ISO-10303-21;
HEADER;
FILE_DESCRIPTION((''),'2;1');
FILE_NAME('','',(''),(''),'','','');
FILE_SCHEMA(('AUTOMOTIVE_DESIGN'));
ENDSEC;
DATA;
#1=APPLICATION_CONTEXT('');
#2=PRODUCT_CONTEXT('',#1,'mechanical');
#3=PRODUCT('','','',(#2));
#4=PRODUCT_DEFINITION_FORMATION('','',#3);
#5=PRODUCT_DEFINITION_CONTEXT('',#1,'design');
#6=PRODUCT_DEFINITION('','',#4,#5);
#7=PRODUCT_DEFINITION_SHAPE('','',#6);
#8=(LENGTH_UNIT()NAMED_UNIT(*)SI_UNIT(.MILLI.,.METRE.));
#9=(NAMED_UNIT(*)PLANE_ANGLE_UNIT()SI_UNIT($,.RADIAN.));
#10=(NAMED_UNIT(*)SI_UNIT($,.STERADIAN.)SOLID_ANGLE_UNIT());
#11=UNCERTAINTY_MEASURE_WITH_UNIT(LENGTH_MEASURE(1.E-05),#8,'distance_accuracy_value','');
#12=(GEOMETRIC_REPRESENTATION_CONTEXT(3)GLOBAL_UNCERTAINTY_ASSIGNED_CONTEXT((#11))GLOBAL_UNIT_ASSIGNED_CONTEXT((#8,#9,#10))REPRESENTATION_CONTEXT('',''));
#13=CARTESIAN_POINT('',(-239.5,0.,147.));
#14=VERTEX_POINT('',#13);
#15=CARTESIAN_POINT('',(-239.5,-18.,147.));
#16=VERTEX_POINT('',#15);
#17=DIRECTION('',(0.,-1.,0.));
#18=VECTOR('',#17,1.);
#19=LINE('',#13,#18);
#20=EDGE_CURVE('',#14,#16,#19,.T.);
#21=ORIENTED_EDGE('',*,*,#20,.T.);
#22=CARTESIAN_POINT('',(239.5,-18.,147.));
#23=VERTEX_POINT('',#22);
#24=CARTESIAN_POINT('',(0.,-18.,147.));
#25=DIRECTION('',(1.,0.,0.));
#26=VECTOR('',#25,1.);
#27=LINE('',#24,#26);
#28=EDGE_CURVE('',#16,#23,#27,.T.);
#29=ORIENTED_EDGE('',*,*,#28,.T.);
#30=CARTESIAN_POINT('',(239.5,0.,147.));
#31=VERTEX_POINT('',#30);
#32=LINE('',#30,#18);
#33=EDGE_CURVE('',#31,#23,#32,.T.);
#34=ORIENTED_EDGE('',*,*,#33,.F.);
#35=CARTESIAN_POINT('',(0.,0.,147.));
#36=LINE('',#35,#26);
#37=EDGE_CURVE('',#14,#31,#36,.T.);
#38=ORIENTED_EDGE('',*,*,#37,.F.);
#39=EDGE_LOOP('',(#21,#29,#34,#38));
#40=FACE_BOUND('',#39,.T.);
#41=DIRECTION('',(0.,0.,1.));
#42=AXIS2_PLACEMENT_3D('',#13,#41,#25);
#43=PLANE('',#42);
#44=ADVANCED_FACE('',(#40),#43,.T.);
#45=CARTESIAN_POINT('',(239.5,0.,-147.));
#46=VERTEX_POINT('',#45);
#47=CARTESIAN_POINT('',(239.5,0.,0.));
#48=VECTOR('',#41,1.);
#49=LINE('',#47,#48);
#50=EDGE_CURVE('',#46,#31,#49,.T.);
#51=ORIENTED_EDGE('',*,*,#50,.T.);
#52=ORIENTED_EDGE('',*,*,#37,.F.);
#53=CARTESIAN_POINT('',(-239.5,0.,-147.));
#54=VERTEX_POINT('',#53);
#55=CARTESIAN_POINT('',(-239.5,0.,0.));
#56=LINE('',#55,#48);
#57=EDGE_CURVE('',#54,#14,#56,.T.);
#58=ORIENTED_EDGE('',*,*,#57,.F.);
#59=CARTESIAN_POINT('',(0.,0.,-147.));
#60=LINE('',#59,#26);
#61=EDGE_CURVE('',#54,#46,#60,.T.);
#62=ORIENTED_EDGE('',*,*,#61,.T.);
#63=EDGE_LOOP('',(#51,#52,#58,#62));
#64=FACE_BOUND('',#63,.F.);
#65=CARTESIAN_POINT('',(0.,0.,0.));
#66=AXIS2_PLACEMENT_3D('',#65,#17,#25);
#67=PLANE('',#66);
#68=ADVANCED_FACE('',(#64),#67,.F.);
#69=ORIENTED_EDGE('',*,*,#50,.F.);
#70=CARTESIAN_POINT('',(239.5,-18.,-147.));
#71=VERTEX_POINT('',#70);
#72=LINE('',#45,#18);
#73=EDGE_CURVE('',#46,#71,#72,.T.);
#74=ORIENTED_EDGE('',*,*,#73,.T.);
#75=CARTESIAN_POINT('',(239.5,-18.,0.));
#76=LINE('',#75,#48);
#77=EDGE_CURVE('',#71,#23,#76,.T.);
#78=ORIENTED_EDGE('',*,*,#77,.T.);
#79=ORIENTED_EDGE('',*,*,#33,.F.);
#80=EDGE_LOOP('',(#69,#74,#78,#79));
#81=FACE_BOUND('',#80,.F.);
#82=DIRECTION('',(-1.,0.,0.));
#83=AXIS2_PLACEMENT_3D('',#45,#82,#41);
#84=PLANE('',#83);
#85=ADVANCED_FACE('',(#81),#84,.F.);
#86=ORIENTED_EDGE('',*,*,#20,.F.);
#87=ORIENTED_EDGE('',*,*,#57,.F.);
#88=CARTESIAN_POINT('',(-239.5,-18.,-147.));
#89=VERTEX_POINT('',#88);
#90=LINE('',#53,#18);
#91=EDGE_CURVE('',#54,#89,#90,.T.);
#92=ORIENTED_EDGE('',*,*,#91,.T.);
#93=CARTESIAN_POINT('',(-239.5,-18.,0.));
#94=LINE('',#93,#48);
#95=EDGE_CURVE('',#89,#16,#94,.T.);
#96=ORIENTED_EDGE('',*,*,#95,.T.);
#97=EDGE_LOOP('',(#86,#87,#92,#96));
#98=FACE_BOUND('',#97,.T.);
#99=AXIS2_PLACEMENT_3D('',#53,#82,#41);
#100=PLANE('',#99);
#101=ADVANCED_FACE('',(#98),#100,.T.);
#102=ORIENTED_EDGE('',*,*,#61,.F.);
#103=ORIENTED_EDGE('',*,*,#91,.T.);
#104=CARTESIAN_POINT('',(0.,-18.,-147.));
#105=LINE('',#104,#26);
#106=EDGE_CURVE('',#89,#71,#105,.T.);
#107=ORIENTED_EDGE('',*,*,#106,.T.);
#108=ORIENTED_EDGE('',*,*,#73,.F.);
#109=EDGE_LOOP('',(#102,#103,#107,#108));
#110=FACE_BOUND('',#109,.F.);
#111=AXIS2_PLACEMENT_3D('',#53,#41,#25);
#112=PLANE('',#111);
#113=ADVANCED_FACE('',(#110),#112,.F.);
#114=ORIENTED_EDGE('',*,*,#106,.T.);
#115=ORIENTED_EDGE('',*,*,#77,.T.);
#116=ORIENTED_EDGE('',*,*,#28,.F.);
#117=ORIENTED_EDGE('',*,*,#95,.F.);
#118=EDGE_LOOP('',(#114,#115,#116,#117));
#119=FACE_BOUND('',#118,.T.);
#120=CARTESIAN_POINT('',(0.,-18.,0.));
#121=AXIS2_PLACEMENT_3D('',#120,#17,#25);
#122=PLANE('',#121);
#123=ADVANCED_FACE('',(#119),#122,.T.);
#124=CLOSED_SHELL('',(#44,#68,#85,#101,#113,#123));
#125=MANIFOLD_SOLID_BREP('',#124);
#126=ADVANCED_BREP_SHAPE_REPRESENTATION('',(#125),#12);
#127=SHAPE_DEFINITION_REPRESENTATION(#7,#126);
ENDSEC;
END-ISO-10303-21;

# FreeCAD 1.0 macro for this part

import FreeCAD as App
import Part
import Sketcher

V = App.Vector
Q = App.Units.Quantity


def add_polygon(sketch, points):
    """Adds a closed chain of lines whose ends are joined by coincident constraints."""
    first, n = sketch.GeometryCount, len(points)
    for a, b in zip(points, points[1:] + points[:1]):
        sketch.addGeometry(Part.LineSegment(App.Vector(*a, 0), App.Vector(*b, 0)), False)
    for i in range(n):
        sketch.addConstraint(Sketcher.Constraint("Coincident", first + i, 2, first + (i + 1) % n, 1))

doc = App.newDocument("Part")
body = doc.addObject("PartDesign::Body", "Body")

# Sketch on XZ plane
sketch1 = doc.addObject("Sketcher::SketchObject", "Sketch")
body.addObject(sketch1)
sketch1.AttachmentSupport = (doc.XZ_Plane, [""])
sketch1.MapMode = "FlatFace"
add_polygon(sketch1, [(-240, 147), (-240, -147), (240, -147), (240, 147)])  # lines 0-3
sketch1.addConstraint(Sketcher.Constraint("Vertical", 0))
sketch1.addConstraint(Sketcher.Constraint("Horizontal", 1))
sketch1.addConstraint(Sketcher.Constraint("Vertical", 2))
sketch1.addConstraint(Sketcher.Constraint("Horizontal", 3))
sketch1.addConstraint(Sketcher.Constraint("Symmetric", 0, 2, 2, 2, -1, 1))
sketch1.addConstraint(Sketcher.Constraint("DistanceX", 1, 1, 1, 2, Q("479 mm")))
sketch1.addConstraint(Sketcher.Constraint("DistanceY", 0, 2, 0, 1, Q("294 mm")))
pad1 = doc.addObject("PartDesign::Pad", "Pad")
body.addObject(pad1)
pad1.Profile = sketch1
pad1.Length = 18

doc.recompute()
